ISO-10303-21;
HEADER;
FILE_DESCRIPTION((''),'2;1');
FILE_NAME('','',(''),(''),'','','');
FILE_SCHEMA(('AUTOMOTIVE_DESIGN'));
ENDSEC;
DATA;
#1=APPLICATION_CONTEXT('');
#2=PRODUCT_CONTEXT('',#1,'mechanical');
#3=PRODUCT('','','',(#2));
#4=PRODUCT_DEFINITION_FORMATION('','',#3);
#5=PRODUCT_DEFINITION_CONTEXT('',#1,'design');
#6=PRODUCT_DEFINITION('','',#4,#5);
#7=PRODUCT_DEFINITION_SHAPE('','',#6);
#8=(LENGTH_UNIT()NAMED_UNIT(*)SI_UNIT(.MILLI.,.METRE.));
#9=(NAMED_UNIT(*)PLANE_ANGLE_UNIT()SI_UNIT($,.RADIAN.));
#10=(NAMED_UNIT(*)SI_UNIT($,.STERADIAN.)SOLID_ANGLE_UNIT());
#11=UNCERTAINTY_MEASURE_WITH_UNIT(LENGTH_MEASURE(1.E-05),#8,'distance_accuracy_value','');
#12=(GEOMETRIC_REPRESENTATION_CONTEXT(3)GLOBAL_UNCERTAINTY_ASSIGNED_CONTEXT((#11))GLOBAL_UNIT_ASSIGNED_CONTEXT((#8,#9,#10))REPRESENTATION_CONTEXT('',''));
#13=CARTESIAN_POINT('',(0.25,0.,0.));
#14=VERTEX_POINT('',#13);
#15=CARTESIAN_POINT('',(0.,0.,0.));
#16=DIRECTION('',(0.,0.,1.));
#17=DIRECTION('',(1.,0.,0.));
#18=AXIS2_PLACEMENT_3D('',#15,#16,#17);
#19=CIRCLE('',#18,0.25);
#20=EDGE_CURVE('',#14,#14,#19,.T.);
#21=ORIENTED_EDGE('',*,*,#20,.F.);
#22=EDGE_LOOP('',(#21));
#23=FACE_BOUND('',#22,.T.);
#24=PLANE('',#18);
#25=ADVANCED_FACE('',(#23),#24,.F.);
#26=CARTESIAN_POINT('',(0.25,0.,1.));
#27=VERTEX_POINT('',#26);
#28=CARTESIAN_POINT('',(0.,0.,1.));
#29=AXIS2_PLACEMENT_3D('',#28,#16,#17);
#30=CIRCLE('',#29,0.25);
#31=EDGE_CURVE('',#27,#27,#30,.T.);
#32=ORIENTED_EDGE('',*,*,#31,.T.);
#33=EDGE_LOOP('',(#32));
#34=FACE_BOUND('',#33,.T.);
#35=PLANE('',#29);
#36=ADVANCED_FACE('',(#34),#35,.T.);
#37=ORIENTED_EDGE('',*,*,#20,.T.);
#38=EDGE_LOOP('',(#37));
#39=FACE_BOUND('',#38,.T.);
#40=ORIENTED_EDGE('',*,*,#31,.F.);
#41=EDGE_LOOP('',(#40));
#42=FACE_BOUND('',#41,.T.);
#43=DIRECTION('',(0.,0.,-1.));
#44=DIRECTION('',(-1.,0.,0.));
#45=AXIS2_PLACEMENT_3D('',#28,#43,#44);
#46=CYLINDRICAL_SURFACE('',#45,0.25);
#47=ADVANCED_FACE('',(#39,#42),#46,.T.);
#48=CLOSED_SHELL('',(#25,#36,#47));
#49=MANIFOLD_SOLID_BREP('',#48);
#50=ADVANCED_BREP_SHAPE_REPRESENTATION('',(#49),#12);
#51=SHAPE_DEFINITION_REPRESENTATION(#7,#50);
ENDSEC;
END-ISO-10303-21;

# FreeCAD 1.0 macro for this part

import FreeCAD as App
import Part
import Sketcher
from FreeCAD import Vector
Q = App.Units.Quantity

doc = App.newDocument("Part")
body = doc.addObject("PartDesign::Body", "Body")

sketch1 = body.newObject("Sketcher::SketchObject", "Sketch")
sketch1.AttachmentSupport = (doc.getObject("XY_Plane"), [""])
sketch1.MapMode = "FlatFace"
sketch1.addGeometry(Part.Circle(Vector(0, 0, 0), Vector(0, 0, 1), 0.25), False)
sketch1.addConstraint([
    Sketcher.Constraint("Coincident", 0, 3, -1, 1),
    Sketcher.Constraint("Diameter", 0, Q("0.5 mm")),
])
pad1 = body.newObject("PartDesign::Pad", "Pad")
pad1.Profile = sketch1
pad1.Length = 1

doc.recompute()
